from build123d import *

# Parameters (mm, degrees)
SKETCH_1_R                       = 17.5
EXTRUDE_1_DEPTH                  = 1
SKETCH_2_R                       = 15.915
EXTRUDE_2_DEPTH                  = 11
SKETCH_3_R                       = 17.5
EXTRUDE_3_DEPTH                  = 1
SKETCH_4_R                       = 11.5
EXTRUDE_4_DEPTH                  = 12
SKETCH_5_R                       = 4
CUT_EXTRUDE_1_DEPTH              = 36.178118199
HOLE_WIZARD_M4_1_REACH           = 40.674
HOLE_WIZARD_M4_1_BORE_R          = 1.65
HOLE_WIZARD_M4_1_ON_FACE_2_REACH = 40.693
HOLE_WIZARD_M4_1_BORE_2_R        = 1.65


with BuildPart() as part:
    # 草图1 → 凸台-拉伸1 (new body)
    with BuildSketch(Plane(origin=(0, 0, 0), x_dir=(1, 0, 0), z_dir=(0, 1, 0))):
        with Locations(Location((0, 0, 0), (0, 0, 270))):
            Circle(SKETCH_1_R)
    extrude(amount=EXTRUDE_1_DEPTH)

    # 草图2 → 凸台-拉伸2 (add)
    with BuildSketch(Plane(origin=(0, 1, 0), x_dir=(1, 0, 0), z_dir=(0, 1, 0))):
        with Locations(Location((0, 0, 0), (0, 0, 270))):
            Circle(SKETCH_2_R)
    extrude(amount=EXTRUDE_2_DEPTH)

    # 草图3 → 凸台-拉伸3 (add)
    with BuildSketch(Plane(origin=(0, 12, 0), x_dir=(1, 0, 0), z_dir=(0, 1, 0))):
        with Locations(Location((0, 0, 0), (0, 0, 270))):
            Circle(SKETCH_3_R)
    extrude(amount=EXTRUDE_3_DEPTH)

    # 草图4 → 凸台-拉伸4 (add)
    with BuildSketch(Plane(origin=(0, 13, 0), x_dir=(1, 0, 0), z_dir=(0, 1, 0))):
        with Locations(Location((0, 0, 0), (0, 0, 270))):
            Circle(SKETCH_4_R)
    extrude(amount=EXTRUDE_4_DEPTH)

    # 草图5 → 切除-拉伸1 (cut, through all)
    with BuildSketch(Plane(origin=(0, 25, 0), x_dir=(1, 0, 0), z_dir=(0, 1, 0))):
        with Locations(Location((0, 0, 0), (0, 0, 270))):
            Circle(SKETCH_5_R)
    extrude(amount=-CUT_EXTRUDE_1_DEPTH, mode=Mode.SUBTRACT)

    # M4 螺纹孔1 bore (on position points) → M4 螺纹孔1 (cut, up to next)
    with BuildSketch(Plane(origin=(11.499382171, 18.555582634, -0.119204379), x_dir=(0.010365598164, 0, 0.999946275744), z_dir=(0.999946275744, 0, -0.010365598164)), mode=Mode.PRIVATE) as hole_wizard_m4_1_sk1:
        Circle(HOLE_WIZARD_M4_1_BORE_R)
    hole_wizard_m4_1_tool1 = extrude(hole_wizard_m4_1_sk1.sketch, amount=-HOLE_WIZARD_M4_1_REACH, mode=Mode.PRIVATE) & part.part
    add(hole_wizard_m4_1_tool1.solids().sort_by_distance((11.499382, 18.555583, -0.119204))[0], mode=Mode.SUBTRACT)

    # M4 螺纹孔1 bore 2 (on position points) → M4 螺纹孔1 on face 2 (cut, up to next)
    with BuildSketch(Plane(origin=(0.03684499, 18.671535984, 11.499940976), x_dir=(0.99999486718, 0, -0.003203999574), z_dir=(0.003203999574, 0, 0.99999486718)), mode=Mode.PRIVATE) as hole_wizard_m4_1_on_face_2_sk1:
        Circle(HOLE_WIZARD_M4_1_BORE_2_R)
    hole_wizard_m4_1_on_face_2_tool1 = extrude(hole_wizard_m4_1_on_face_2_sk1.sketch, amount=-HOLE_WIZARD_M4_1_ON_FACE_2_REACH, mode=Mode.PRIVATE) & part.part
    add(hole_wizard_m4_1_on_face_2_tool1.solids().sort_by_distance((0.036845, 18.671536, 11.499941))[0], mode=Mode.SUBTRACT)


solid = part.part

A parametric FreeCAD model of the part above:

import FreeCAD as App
import Part
import Sketcher
from FreeCAD import Vector
Q = App.Units.Quantity

doc = App.newDocument("Part")
body = doc.addObject("PartDesign::Body", "Body")

sketch1 = body.newObject("Sketcher::SketchObject", "Sketch")
sketch1.AttachmentSupport = (doc.getObject("XZ_Plane"), [""])
sketch1.MapMode = "FlatFace"
sketch1.addGeometry(Part.Circle(Vector(0, 0, 0), Vector(0, 0, 1), 18), False)
sketch1.addConstraint([
    Sketcher.Constraint("Coincident", 0, 3, -1, 1),
    Sketcher.Constraint("Diameter", 0, Q("35 mm")),
])
pad1 = body.newObject("PartDesign::Pad", "Pad")
pad1.Profile = sketch1
pad1.Length = 1
pad1.Reversed = True

sketch2 = body.newObject("Sketcher::SketchObject", "Sketch001")
sketch2.AttachmentSupport = (doc.getObject("XZ_Plane"), [""])
sketch2.MapMode = "FlatFace"
sketch2.AttachmentOffset = App.Placement(Vector(0, 0, -1), App.Rotation())
sketch2.addGeometry(Part.Circle(Vector(0, 0, 0), Vector(0, 0, 1), 16), False)
sketch2.addConstraint([
    Sketcher.Constraint("Coincident", 0, 3, -1, 1),
    Sketcher.Constraint("Diameter", 0, Q("31.83 mm")),
])
pad2 = body.newObject("PartDesign::Pad", "Pad001")
pad2.Profile = sketch2
pad2.Length = 11
pad2.Reversed = True

sketch3 = body.newObject("Sketcher::SketchObject", "Sketch002")
sketch3.AttachmentSupport = (doc.getObject("XZ_Plane"), [""])
sketch3.MapMode = "FlatFace"
sketch3.AttachmentOffset = App.Placement(Vector(0, 0, -12), App.Rotation())
sketch3.addGeometry(Part.Circle(Vector(0, 0, 0), Vector(0, 0, 1), 18), False)
sketch3.addConstraint([
    Sketcher.Constraint("Coincident", 0, 3, -1, 1),
    Sketcher.Constraint("Diameter", 0, Q("35 mm")),
])
pad3 = body.newObject("PartDesign::Pad", "Pad002")
pad3.Profile = sketch3
pad3.Length = 1
pad3.Reversed = True

sketch4 = body.newObject("Sketcher::SketchObject", "Sketch003")
sketch4.AttachmentSupport = (doc.getObject("XZ_Plane"), [""])
sketch4.MapMode = "FlatFace"
sketch4.AttachmentOffset = App.Placement(Vector(0, 0, -13), App.Rotation())
sketch4.addGeometry(Part.Circle(Vector(0, 0, 0), Vector(0, 0, 1), 12), False)
sketch4.addConstraint([
    Sketcher.Constraint("Coincident", 0, 3, -1, 1),
    Sketcher.Constraint("Diameter", 0, Q("23 mm")),
])
pad4 = body.newObject("PartDesign::Pad", "Pad003")
pad4.Profile = sketch4
pad4.Length = 12
pad4.Reversed = True

sketch5 = body.newObject("Sketcher::SketchObject", "Sketch004")
sketch5.AttachmentSupport = (doc.getObject("XZ_Plane"), [""])
sketch5.MapMode = "FlatFace"
sketch5.AttachmentOffset = App.Placement(Vector(0, 0, -25), App.Rotation())
sketch5.addGeometry(Part.Circle(Vector(0, 0, 0), Vector(0, 0, 1), 4), False)
sketch5.addConstraint([
    Sketcher.Constraint("Coincident", 0, 3, -1, 1),
    Sketcher.Constraint("Diameter", 0, Q("8 mm")),
])
pocket1 = body.newObject("PartDesign::Pocket", "Pocket")
pocket1.Profile = sketch5
pocket1.Type = "ThroughAll"
pocket1.Reversed = True

sketch6 = body.newObject("Sketcher::SketchObject", "Sketch005")
sketch6.Placement = App.Placement(Vector(11.499382, 18.555583, -0.119204), App.Rotation(Vector(0.010365598, 0, 0.999946276), Vector(0, -1.000000001, 0), Vector(0.999946276, 0, -0.010365598), "ZXY"))
sketch6.addGeometry(Part.Circle(Vector(0, 0, 0), Vector(0, 0, 1), 1.6), False)
sketch6.addConstraint([
    Sketcher.Constraint("Coincident", 0, 3, -1, 1),
    Sketcher.Constraint("Diameter", 0, Q("3.3 mm")),
])
pocket2 = body.newObject("PartDesign::Pocket", "Pocket001")
pocket2.Profile = sketch6
pocket2.Length = 7.85617

sketch7 = body.newObject("Sketcher::SketchObject", "Sketch006")
sketch7.Placement = App.Placement(Vector(0.036845, 18.671536, 11.499941), App.Rotation(Vector(0.999994867, 0, -0.003204), Vector(0, 1, 0), Vector(0.003204, 0, 0.999994867), "ZXY"))
sketch7.addGeometry(Part.Circle(Vector(0, 0, 0), Vector(0, 0, 1), 1.6), False)
sketch7.addConstraint([
    Sketcher.Constraint("Coincident", 0, 3, -1, 1),
    Sketcher.Constraint("Diameter", 0, Q("3.3 mm")),
])
pocket3 = body.newObject("PartDesign::Pocket", "Pocket002")
pocket3.Profile = sketch7
pocket3.Type = "UpToFirst"

doc.recompute()
